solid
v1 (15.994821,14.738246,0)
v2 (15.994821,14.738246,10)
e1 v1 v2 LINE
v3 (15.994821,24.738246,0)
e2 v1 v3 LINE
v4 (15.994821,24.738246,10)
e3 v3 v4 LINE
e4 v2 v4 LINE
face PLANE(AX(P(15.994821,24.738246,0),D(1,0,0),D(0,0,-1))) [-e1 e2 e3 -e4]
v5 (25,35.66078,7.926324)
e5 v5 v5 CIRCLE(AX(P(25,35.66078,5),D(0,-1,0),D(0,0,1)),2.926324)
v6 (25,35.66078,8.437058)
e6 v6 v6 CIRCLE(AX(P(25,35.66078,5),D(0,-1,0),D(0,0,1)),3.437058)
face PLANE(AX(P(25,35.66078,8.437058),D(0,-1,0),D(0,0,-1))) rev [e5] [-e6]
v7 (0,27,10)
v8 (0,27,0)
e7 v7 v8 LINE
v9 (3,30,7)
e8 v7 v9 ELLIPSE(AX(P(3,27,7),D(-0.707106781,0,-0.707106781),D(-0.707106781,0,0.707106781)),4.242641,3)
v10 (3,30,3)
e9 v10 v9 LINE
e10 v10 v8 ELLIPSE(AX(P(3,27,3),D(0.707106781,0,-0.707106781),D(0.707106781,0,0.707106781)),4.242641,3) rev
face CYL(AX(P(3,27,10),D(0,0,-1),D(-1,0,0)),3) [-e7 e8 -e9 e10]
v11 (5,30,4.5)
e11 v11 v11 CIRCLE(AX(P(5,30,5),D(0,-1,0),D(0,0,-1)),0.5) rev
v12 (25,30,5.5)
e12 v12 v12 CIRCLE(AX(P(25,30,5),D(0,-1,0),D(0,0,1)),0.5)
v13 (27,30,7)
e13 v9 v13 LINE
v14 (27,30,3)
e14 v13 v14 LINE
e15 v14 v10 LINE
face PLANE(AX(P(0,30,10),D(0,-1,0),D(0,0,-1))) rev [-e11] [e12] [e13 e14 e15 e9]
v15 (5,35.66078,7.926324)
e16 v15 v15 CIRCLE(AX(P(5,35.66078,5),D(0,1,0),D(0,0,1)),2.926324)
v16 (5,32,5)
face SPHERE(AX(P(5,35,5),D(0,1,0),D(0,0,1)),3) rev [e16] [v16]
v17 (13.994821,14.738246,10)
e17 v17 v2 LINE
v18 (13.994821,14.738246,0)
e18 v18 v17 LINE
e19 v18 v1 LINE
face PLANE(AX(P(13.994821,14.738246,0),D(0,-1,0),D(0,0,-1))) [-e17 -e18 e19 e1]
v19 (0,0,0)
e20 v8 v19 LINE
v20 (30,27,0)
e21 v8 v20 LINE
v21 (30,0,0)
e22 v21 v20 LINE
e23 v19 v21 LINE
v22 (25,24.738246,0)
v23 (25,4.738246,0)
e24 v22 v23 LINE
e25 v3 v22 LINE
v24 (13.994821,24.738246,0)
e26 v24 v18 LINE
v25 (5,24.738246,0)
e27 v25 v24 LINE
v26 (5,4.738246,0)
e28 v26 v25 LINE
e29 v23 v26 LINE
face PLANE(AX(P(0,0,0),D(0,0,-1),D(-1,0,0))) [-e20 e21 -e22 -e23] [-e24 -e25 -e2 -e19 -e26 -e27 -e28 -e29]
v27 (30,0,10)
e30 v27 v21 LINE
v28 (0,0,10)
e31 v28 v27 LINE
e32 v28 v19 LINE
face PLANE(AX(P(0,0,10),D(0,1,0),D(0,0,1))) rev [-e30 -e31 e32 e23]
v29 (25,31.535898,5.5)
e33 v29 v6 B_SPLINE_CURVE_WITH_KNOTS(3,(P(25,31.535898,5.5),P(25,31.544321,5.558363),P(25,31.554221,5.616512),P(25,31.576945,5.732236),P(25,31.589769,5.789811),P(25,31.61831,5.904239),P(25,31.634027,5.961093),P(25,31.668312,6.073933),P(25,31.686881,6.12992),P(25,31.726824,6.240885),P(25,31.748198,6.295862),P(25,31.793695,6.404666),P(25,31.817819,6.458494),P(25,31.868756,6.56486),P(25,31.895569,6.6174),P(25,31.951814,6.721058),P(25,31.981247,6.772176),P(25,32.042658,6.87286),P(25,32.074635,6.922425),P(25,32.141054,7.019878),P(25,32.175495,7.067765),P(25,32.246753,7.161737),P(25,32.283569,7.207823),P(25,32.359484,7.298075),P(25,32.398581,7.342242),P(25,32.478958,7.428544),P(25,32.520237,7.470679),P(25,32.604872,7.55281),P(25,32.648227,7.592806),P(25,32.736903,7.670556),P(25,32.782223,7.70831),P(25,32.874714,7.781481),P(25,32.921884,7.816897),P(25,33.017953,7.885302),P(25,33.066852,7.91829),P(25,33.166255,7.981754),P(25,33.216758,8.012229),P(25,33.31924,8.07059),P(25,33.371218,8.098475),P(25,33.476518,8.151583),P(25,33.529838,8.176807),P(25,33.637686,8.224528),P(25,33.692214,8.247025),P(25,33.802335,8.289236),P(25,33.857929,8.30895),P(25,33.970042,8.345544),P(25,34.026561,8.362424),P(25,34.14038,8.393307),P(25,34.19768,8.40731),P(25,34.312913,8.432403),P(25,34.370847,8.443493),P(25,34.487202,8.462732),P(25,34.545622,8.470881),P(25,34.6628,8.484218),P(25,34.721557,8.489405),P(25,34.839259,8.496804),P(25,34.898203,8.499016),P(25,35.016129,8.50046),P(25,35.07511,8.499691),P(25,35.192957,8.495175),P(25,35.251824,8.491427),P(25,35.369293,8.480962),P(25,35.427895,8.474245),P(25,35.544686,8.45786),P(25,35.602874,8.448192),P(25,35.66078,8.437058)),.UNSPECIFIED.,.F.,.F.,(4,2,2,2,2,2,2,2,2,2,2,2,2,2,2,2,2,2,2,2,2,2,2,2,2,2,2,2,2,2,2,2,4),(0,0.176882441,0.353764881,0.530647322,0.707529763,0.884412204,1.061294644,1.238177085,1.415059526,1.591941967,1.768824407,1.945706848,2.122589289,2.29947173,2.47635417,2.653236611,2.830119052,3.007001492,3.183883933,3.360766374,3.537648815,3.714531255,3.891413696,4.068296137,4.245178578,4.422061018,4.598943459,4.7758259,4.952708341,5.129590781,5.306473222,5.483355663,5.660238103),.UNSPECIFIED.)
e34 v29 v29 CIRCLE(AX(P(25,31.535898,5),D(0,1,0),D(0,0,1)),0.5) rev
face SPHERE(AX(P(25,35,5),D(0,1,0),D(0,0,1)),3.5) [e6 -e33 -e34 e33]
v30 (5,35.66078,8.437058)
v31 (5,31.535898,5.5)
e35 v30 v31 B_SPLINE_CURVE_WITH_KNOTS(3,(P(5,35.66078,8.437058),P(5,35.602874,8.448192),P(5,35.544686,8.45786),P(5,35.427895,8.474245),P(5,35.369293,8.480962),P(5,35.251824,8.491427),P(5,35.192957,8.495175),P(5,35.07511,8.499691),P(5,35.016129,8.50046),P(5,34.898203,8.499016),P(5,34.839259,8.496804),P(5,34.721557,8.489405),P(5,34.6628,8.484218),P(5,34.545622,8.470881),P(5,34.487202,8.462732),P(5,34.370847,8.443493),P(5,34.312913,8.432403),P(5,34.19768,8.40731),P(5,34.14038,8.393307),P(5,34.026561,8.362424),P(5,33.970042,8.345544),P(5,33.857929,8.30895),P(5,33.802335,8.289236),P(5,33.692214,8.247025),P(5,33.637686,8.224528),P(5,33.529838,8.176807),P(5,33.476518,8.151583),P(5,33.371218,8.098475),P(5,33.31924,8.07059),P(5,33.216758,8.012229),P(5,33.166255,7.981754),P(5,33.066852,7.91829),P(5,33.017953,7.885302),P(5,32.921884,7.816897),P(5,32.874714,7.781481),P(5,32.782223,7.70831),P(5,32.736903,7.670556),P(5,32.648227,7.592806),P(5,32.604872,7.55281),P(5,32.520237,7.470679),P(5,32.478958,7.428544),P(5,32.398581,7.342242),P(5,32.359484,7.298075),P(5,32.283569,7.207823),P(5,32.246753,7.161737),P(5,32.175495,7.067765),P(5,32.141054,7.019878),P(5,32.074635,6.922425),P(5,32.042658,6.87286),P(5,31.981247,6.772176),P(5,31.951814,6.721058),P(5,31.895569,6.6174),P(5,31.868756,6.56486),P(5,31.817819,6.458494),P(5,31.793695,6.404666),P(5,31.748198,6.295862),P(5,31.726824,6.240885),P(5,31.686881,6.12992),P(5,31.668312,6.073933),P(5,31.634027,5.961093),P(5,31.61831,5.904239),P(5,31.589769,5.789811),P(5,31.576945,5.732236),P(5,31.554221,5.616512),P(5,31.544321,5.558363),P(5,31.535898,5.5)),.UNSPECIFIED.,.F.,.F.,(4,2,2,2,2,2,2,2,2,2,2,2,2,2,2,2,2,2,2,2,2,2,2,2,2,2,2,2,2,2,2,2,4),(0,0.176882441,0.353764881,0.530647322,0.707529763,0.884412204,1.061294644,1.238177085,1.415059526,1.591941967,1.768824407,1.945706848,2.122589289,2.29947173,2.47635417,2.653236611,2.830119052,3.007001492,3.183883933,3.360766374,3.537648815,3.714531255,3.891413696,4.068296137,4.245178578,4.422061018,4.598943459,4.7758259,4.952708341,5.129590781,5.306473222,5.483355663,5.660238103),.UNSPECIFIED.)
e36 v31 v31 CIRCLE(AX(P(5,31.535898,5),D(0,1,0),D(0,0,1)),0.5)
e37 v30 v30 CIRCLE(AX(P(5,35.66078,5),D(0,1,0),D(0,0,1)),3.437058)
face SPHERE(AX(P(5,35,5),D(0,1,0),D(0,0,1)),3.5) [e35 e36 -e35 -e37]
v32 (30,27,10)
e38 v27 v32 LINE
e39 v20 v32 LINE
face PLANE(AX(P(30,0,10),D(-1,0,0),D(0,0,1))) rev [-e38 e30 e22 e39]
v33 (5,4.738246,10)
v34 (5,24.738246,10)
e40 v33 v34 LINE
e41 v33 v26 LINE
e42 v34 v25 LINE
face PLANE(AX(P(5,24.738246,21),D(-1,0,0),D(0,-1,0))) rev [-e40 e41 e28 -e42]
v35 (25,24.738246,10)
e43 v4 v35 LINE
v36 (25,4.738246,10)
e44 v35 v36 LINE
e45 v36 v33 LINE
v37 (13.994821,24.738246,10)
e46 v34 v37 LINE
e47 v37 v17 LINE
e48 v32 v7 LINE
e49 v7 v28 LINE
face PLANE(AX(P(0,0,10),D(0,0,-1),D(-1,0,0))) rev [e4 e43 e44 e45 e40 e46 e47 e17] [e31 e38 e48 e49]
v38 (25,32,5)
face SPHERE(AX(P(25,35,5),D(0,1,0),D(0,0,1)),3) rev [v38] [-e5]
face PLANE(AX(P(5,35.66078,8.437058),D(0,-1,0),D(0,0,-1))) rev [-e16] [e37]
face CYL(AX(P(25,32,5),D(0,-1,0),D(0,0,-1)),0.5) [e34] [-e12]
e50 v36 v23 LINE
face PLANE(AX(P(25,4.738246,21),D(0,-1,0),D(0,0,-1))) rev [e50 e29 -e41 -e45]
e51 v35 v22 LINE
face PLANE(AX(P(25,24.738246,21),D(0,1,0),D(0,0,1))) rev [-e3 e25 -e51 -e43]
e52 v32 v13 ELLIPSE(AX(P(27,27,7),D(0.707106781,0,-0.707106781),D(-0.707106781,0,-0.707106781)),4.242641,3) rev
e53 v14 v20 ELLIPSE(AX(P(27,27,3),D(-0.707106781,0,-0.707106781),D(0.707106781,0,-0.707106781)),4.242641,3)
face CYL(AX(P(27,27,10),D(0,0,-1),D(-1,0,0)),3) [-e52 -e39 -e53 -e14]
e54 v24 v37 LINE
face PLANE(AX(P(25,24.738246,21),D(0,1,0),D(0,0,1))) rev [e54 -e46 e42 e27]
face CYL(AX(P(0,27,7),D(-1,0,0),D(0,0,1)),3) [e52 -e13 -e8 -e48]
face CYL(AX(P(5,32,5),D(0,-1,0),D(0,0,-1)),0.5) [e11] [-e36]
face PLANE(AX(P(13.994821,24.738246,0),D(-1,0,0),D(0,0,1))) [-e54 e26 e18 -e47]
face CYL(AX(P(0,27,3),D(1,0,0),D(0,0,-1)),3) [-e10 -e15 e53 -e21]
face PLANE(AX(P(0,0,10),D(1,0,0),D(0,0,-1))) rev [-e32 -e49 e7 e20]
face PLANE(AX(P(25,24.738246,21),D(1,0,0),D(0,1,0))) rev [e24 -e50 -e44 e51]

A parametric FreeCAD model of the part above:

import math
import FreeCAD as App
import Part
import Sketcher
from FreeCAD import Vector
Q = App.Units.Quantity


def edges_at(feature, points):
    """Names of the edges that pass closest to the given points."""
    edges = feature.Shape.Edges
    near = lambda p: min(range(len(edges)), key=lambda i: edges[i].distToShape(Part.Vertex(*p))[0])
    return sorted({f"Edge{near(p) + 1}" for p in points})

doc = App.newDocument("Part")
body = doc.addObject("PartDesign::Body", "Body")

sketch1 = body.newObject("Sketcher::SketchObject", "Sketch")
sketch1.AttachmentSupport = (doc.getObject("XY_Plane"), [""])
sketch1.MapMode = "FlatFace"
sketch1.addGeometry([
    Part.LineSegment(Vector(0, 30, 0), Vector(0, 0, 0)),
    Part.LineSegment(Vector(0, 0, 0), Vector(30, 0, 0)),
    Part.LineSegment(Vector(30, 0, 0), Vector(30, 30, 0)),
    Part.LineSegment(Vector(30, 30, 0), Vector(0, 30, 0)),
], False)
sketch1.addConstraint([
    Sketcher.Constraint("Coincident", 0, 2, 1, 1),
    Sketcher.Constraint("Coincident", 1, 2, 2, 1),
    Sketcher.Constraint("Coincident", 2, 2, 3, 1),
    Sketcher.Constraint("Coincident", 3, 2, 0, 1),
    Sketcher.Constraint("Vertical", 0),
    Sketcher.Constraint("Horizontal", 1),
    Sketcher.Constraint("Vertical", 2),
    Sketcher.Constraint("Horizontal", 3),
    Sketcher.Constraint("Coincident", 0, 2, -1, 1),
    Sketcher.Constraint("Equal", 3, 0),
    Sketcher.Constraint("DistanceX", 1, 1, 1, 2, Q("30 mm")),
])
pad1 = body.newObject("PartDesign::Pad", "Pad")
pad1.Profile = sketch1
pad1.Length = 10
doc.recompute()

fillet = body.newObject("PartDesign::Fillet", "Fillet")
fillet.Base = (pad1, edges_at(pad1, [
    (15, 30, 10),
    (15, 30, 0),
    (0, 30, 5),
    (30, 30, 5),
]))
fillet.Radius = 3

sketch2 = body.newObject("Sketcher::SketchObject", "Sketch001")
sketch2.AttachmentSupport = (doc.getObject("XY_Plane"), [""])
sketch2.MapMode = "FlatFace"
sketch2.addGeometry([
    Part.LineSegment(Vector(25, 25, 0), Vector(25, 5, 0)),
    Part.LineSegment(Vector(25, 5, 0), Vector(5, 5, 0)),
    Part.LineSegment(Vector(5, 5, 0), Vector(5, 25, 0)),
    Part.LineSegment(Vector(5, 25, 0), Vector(25, 25, 0)),
], False)
sketch2.addConstraint([
    Sketcher.Constraint("Coincident", 0, 2, 1, 1),
    Sketcher.Constraint("Coincident", 1, 2, 2, 1),
    Sketcher.Constraint("Coincident", 2, 2, 3, 1),
    Sketcher.Constraint("Coincident", 3, 2, 0, 1),
    Sketcher.Constraint("Vertical", 0),
    Sketcher.Constraint("Horizontal", 1),
    Sketcher.Constraint("Vertical", 2),
    Sketcher.Constraint("Horizontal", 3),
    Sketcher.Constraint("Equal", 3, 0),
    Sketcher.Constraint("DistanceX", 1, 2, 1, 1, Q("20 mm")),
    Sketcher.Constraint("DistanceX", -1, 1, 0, 2, Q("25 mm")),
    Sketcher.Constraint("DistanceY", -1, 1, 0, 2, Q("4.738246 mm")),
])
pocket1 = body.newObject("PartDesign::Pocket", "Pocket")
pocket1.Profile = sketch2
pocket1.Length = 21
pocket1.Reversed = True

sketch3 = body.newObject("Sketcher::SketchObject", "Sketch002")
sketch3.AttachmentSupport = (doc.getObject("XZ_Plane"), [""])
sketch3.MapMode = "FlatFace"
sketch3.AttachmentOffset = App.Placement(Vector(0, 0, -30), App.Rotation())
sketch3.addGeometry(Part.Circle(Vector(5, 5, 0), Vector(0, 0, 1), 0.5), False)
sketch3.addConstraint([
    Sketcher.Constraint("Diameter", 0, Q("1 mm")),
    Sketcher.Constraint("DistanceX", -1, 1, 0, 3, Q("5 mm")),
    Sketcher.Constraint("DistanceY", -1, 1, 0, 3, Q("5 mm")),
])
pad2 = body.newObject("PartDesign::Pad", "Pad001")
pad2.Profile = sketch3
pad2.Length = 2
pad2.Reversed = True

sketch4 = body.newObject("Sketcher::SketchObject", "Sketch003")
sketch4.AttachmentSupport = (doc.getObject("YZ_Plane"), [""])
sketch4.MapMode = "FlatFace"
sketch4.AttachmentOffset = App.Placement(Vector(0, 0, 5), App.Rotation())
sketch4.addGeometry([
    Part.LineSegment(Vector(32, 5, 0), Vector(31.5, 5, 0)),
    Part.ArcOfCircle(Part.Circle(Vector(35, 5, 0), Vector(0, 0, 1), 3.5), math.radians(79), math.radians(180)),
    Part.LineSegment(Vector(35.7, 8.4, 0), Vector(35.7, 7.9, 0)),
    Part.ArcOfCircle(Part.Circle(Vector(35, 5, 0), Vector(0, 0, 1), 3), math.radians(77), math.radians(180)),
], False)
sketch4.addGeometry(Part.LineSegment(Vector(35.7, 5, 0), Vector(31.5, 5, 0)), True)
sketch4.addConstraint([
    Sketcher.Constraint("Coincident", 0, 2, 1, 2),
    Sketcher.Constraint("Coincident", 1, 1, 2, 1),
    Sketcher.Constraint("Coincident", 2, 2, 3, 1),
    Sketcher.Constraint("Coincident", 3, 2, 0, 1),
    Sketcher.Constraint("Horizontal", 0),
    Sketcher.Constraint("Vertical", 2),
    Sketcher.Constraint("Horizontal", 4),
    Sketcher.Constraint("Coincident", 3, 3, 1, 3),
    Sketcher.Constraint("Coincident", 4, 2, 0, 2),
    Sketcher.Constraint("Horizontal", 3, 3, 0, 2),
    Sketcher.Constraint("Vertical", 2, 2, 4, 1),
    Sketcher.Constraint("Radius", 3, Q("3 mm")),
    Sketcher.Constraint("Radius", 1, Q("3.5 mm")),
    Sketcher.Constraint("DistanceX", -1, 1, 1, 3, Q("35 mm")),
    Sketcher.Constraint("DistanceY", -1, 1, 1, 3, Q("5 mm")),
    Sketcher.Constraint("DistanceX", 4, 2, 4, 1, Q("4.16078 mm")),
])
revolution = body.newObject("PartDesign::Revolution", "Revolution")
revolution.Profile = sketch4
revolution.ReferenceAxis = (sketch4, ["Axis0"])
revolution.Angle = 360
doc.recompute()

datumplane = body.newObject("PartDesign::Plane", "DatumPlane")
datumplane.AttachmentSupport = (doc.getObject("YZ_Plane"), [""])
datumplane.MapMode = "FlatFace"
datumplane.AttachmentOffset = App.Placement(Vector(0, 0, 15), App.Rotation())
mirrored = body.newObject("PartDesign::Mirrored", "Mirrored")
mirrored.Originals = [pad2, revolution]
mirrored.MirrorPlane = (datumplane, [""])
body.Tip = mirrored

sketch5 = body.newObject("Sketcher::SketchObject", "Sketch004")
sketch5.AttachmentSupport = (doc.getObject("XY_Plane"), [""])
sketch5.MapMode = "FlatFace"
sketch5.AttachmentOffset = App.Placement(Vector(0, 0, 10), App.Rotation())
sketch5.addGeometry([
    Part.LineSegment(Vector(14, 24.7, 0), Vector(14, 14.7, 0)),
    Part.LineSegment(Vector(14, 14.7, 0), Vector(16, 14.7, 0)),
    Part.LineSegment(Vector(16, 14.7, 0), Vector(16, 24.7, 0)),
    Part.LineSegment(Vector(16, 24.7, 0), Vector(14, 24.7, 0)),
], False)
sketch5.addConstraint([
    Sketcher.Constraint("Coincident", 0, 2, 1, 1),
    Sketcher.Constraint("Coincident", 1, 2, 2, 1),
    Sketcher.Constraint("Coincident", 2, 2, 3, 1),
    Sketcher.Constraint("Coincident", 3, 2, 0, 1),
    Sketcher.Constraint("Vertical", 0),
    Sketcher.Constraint("Horizontal", 1),
    Sketcher.Constraint("Vertical", 2),
    Sketcher.Constraint("Horizontal", 3),
    Sketcher.Constraint("DistanceX", 1, 1, 1, 2, Q("2 mm")),
    Sketcher.Constraint("DistanceY", 0, 2, 0, 1, Q("10 mm")),
    Sketcher.Constraint("DistanceX", -1, 1, 0, 2, Q("13.994821 mm")),
    Sketcher.Constraint("DistanceY", -1, 1, 0, 2, Q("14.738246 mm")),
])
pad3 = body.newObject("PartDesign::Pad", "Pad002")
pad3.Profile = sketch5
pad3.Length = 10
pad3.Reversed = True

doc.recompute()
